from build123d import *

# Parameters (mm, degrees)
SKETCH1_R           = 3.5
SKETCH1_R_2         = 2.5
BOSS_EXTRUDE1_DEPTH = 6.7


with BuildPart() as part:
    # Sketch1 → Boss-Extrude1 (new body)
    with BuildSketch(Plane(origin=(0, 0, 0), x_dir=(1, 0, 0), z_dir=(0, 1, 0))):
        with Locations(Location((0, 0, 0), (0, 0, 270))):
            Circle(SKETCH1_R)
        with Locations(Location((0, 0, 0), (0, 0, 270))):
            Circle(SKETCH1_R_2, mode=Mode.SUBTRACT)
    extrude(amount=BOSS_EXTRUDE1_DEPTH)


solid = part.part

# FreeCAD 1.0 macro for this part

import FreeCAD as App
import Part
import Sketcher

doc = App.newDocument("Part")
body = doc.addObject("PartDesign::Body", "Body")

# Sketch on XZ plane
sketch1 = body.newObject("Sketcher::SketchObject", "Sketch")
sketch1.AttachmentSupport = (doc.getObject("XZ_Plane"), [""])
sketch1.MapMode = "FlatFace"
sketch1.addGeometry(Part.Circle(App.Vector(0, 0, 0), App.Vector(0, 0, 1), 3.5), False)
sketch1.addGeometry(Part.Circle(App.Vector(0, 0, 0), App.Vector(0, 0, 1), 2.5), False)
sketch1.addConstraint(Sketcher.Constraint("Coincident", 0, 3, -1, 1))
sketch1.addConstraint(Sketcher.Constraint("Coincident", 1, 3, -1, 1))
sketch1.addConstraint(Sketcher.Constraint("Diameter", 0, 7.0))
sketch1.addConstraint(Sketcher.Constraint("Diameter", 1, 5.0))
pad1 = body.newObject("PartDesign::Pad", "Pad")
pad1.Profile = sketch1
pad1.Length = 6.7
pad1.Reversed = True

doc.recompute()
